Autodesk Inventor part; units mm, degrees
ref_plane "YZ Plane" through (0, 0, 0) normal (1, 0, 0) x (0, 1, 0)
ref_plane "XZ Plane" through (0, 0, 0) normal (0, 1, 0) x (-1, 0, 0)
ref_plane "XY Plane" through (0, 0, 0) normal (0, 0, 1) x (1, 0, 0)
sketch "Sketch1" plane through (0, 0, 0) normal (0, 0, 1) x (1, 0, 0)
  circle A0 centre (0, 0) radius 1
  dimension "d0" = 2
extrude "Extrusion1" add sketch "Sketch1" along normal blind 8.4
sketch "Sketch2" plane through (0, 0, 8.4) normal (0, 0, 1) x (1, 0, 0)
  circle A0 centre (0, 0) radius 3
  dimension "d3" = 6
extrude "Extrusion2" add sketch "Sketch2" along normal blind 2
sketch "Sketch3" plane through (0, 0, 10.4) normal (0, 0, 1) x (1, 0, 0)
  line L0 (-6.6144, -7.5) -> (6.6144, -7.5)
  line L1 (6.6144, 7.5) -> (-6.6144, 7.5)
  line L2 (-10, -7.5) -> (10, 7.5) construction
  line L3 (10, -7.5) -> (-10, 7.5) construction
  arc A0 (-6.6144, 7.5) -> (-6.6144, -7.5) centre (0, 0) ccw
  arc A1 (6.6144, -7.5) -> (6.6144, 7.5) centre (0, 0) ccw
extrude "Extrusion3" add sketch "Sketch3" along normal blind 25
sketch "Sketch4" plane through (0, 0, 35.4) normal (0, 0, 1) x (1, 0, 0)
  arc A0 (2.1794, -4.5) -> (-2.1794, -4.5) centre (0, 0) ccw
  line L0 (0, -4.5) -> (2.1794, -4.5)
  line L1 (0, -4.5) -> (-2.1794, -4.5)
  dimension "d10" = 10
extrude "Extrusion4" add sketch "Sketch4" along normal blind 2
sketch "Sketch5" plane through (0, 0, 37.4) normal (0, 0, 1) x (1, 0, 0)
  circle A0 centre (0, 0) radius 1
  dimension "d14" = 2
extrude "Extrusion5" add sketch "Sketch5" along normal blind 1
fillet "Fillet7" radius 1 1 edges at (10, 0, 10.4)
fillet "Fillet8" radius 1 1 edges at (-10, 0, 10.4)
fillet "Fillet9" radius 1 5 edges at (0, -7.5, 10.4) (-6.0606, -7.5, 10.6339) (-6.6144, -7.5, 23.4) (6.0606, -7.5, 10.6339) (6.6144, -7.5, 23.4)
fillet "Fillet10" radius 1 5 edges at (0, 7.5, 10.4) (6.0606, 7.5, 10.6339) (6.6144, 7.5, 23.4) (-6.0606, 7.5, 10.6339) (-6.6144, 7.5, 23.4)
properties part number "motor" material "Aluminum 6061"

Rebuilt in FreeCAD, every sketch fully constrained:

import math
import FreeCAD as App
import Part
import Sketcher

V = App.Vector
Q = App.Units.Quantity


def edges_at(feature, points):
    """Names of the edges that pass closest to the given points."""
    edges = feature.Shape.Edges
    near = lambda p: min(range(len(edges)), key=lambda i: edges[i].distToShape(Part.Vertex(*p))[0])
    return sorted({f"Edge{near(p) + 1}" for p in points})

doc = App.newDocument("Part")
params = doc.addObject("Spreadsheet::Sheet", "Params")
for row, (alias, value) in enumerate([
    ("sketch1_diameter", "2 mm"),
    ("pad1_length", "8.4 mm"),
    ("sketch2_diameter", "6 mm"),
    ("pad2_length", "2 mm"),
    ("sketch3_radius", "10 mm"),
    ("pad3_length", "25 mm"),
    ("sketch4_radius", "5 mm"),
    ("pad4_length", "2 mm"),
    ("sketch5_diameter", "2 mm"),
    ("pad5_length", "1 mm"),
    ("fillet_radius", "1 mm"),
    ("fillet2_radius", "1 mm"),
    ("fillet3_radius", "1 mm"),
    ("fillet4_radius", "1 mm"),
], start=1):
    params.set(f"A{row}", alias)
    params.set(f"B{row}", "=" + value)
    params.setAlias(f"B{row}", alias)

body = doc.addObject("PartDesign::Body", "Body")

sketch1 = body.newObject("Sketcher::SketchObject", "Sketch")
sketch1.AttachmentSupport = (doc.getObject("XY_Plane"), [""])
sketch1.MapMode = "FlatFace"
sketch1.addGeometry(Part.Circle(V(0, 0, 0), V(0, 0, 1), 1), False)
sketch1.addConstraint([
    Sketcher.Constraint("Coincident", 0, 3, -1, 1),
    Sketcher.Constraint("Diameter", 0, Q("2 mm")),
])
sketch1.setExpression("Constraints[1]", "Params.sketch1_diameter")
pad1 = body.newObject("PartDesign::Pad", "Pad")
pad1.Profile = sketch1
pad1.setExpression("Length", "Params.pad1_length")

sketch2 = body.newObject("Sketcher::SketchObject", "Sketch001")
sketch2.AttachmentSupport = (doc.getObject("XY_Plane"), [""])
sketch2.MapMode = "FlatFace"
sketch2.AttachmentOffset = App.Placement(V(0, 0, 8.4), App.Rotation())
sketch2.addGeometry(Part.Circle(V(0, 0, 0), V(0, 0, 1), 3), False)
sketch2.addConstraint([
    Sketcher.Constraint("Coincident", 0, 3, -1, 1),
    Sketcher.Constraint("Diameter", 0, Q("6 mm")),
])
sketch2.setExpression("Constraints[1]", "Params.sketch2_diameter")
pad2 = body.newObject("PartDesign::Pad", "Pad001")
pad2.Profile = sketch2
pad2.setExpression("Length", "Params.pad2_length")

sketch3 = body.newObject("Sketcher::SketchObject", "Sketch002")
sketch3.AttachmentSupport = (doc.getObject("XY_Plane"), [""])
sketch3.MapMode = "FlatFace"
sketch3.AttachmentOffset = App.Placement(V(0, 0, 10.4), App.Rotation())
sketch3.addGeometry([
    Part.ArcOfCircle(Part.Circle(V(0, 0, 0), V(0, 0, 1), 10.000014), math.radians(131.409715), math.radians(228.590285)),
    Part.LineSegment(V(-6.6144, -7.5, 0), V(6.6144, -7.5, 0)),
    Part.ArcOfCircle(Part.Circle(V(0, 0, 0), V(0, 0, 1), 10.000014), math.radians(-48.590285), math.radians(48.590285)),
    Part.LineSegment(V(6.6144, 7.5, 0), V(-6.6144, 7.5, 0)),
], False)
sketch3.addConstraint([
    Sketcher.Constraint("Coincident", 0, 2, 1, 1),
    Sketcher.Constraint("Coincident", 1, 2, 2, 1),
    Sketcher.Constraint("Coincident", 2, 2, 3, 1),
    Sketcher.Constraint("Coincident", 3, 2, 0, 1),
    Sketcher.Constraint("Horizontal", 1),
    Sketcher.Constraint("Horizontal", 3),
    Sketcher.Constraint("Coincident", 0, 3, -1, 1),
    Sketcher.Constraint("Coincident", 2, 3, -1, 1),
    Sketcher.Constraint("Equal", 0, 2),
    Sketcher.Constraint("Vertical", 1, 2, 2, 2),
    Sketcher.Constraint("Radius", 0, Q("10 mm")),
    Sketcher.Constraint("DistanceY", 1, 2, 2, 2, Q("15 mm")),
])
sketch3.setExpression("Constraints[10]", "Params.sketch3_radius")
pad3 = body.newObject("PartDesign::Pad", "Pad002")
pad3.Profile = sketch3
pad3.setExpression("Length", "Params.pad3_length")

sketch4 = body.newObject("Sketcher::SketchObject", "Sketch003")
sketch4.AttachmentSupport = (doc.getObject("XY_Plane"), [""])
sketch4.MapMode = "FlatFace"
sketch4.AttachmentOffset = App.Placement(V(0, 0, 35.4), App.Rotation())
sketch4.addGeometry([
    Part.LineSegment(V(-2.1794, -4.5, 0), V(2.1794, -4.5, 0)),
    Part.ArcOfCircle(Part.Circle(V(0, 0, 0), V(0, 0, 1), 4.999978), math.radians(-64.158577), math.radians(244.158577)),
], False)
sketch4.addConstraint([
    Sketcher.Constraint("Coincident", 0, 1, 1, 2),
    Sketcher.Constraint("Coincident", 1, 1, 0, 2),
    Sketcher.Constraint("Horizontal", 0),
    Sketcher.Constraint("Coincident", 1, 3, -1, 1),
    Sketcher.Constraint("Radius", 1, Q("5 mm")),
    Sketcher.Constraint("DistanceY", 0, 1, -1, 1, Q("4.5 mm")),
])
sketch4.setExpression("Constraints[4]", "Params.sketch4_radius")
pad4 = body.newObject("PartDesign::Pad", "Pad003")
pad4.Profile = sketch4
pad4.setExpression("Length", "Params.pad4_length")

sketch5 = body.newObject("Sketcher::SketchObject", "Sketch004")
sketch5.AttachmentSupport = (doc.getObject("XY_Plane"), [""])
sketch5.MapMode = "FlatFace"
sketch5.AttachmentOffset = App.Placement(V(0, 0, 37.4), App.Rotation())
sketch5.addGeometry(Part.Circle(V(0, 0, 0), V(0, 0, 1), 1), False)
sketch5.addConstraint([
    Sketcher.Constraint("Coincident", 0, 3, -1, 1),
    Sketcher.Constraint("Diameter", 0, Q("2 mm")),
])
sketch5.setExpression("Constraints[1]", "Params.sketch5_diameter")
pad5 = body.newObject("PartDesign::Pad", "Pad004")
pad5.Profile = sketch5
pad5.setExpression("Length", "Params.pad5_length")
doc.recompute()

fillet = body.newObject("PartDesign::Fillet", "Fillet")
fillet.Base = (pad5, edges_at(pad5, [(10, 0, 10.4)]))
fillet.setExpression("Radius", "Params.fillet_radius")
doc.recompute()

fillet2 = body.newObject("PartDesign::Fillet", "Fillet001")
fillet2.Base = (fillet, edges_at(fillet, [(-10, 0, 10.4)]))
fillet2.setExpression("Radius", "Params.fillet2_radius")
doc.recompute()

fillet3 = body.newObject("PartDesign::Fillet", "Fillet002")
fillet3.Base = (fillet2, edges_at(fillet2, [
    (0, -7.5, 10.4),
    (-6.061, -7.5, 10.634),
    (-6.614, -7.5, 23.4),
    (6.061, -7.5, 10.634),
    (6.614, -7.5, 23.4),
]))
fillet3.setExpression("Radius", "Params.fillet3_radius")
doc.recompute()

fillet4 = body.newObject("PartDesign::Fillet", "Fillet003")
fillet4.Base = (fillet3, edges_at(fillet3, [
    (0, 7.5, 10.4),
    (6.061, 7.5, 10.634),
    (6.614, 7.5, 23.4),
    (-6.061, 7.5, 10.634),
    (-6.614, 7.5, 23.4),
]))
fillet4.setExpression("Radius", "Params.fillet4_radius")

doc.recompute()
